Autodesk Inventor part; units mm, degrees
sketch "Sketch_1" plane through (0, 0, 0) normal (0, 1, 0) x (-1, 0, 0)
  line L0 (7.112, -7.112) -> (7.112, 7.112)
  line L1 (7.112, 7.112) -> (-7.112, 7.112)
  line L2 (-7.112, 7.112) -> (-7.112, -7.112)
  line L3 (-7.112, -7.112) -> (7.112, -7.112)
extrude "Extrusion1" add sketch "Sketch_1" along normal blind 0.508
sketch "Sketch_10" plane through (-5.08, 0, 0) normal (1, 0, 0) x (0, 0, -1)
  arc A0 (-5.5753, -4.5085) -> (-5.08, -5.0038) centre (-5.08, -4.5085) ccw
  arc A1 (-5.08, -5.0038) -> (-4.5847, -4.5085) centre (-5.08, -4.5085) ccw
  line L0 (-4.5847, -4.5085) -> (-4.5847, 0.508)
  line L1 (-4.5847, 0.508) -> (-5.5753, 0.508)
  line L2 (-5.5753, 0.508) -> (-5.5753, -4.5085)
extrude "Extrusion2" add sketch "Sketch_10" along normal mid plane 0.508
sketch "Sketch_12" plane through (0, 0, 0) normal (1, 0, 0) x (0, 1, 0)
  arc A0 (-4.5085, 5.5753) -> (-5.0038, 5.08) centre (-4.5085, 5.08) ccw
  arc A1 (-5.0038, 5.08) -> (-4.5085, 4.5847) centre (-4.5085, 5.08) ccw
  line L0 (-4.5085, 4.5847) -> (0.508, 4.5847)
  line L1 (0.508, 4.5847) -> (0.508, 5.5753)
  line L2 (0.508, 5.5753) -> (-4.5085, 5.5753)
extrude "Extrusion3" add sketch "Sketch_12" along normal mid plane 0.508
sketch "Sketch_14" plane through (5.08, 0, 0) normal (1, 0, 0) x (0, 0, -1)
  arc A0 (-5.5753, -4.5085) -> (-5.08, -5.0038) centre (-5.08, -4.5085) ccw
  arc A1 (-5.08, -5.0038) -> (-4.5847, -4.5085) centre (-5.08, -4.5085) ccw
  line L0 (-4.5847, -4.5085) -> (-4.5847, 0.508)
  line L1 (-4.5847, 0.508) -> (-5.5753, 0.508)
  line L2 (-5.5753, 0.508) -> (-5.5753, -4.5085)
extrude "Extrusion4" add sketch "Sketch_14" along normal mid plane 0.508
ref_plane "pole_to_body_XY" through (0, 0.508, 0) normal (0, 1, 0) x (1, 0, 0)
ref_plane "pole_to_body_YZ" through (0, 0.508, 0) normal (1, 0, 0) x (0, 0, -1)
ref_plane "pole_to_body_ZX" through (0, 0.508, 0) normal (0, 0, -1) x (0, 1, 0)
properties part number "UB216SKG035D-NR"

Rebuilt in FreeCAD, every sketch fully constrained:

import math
import FreeCAD as App
import Part
import Sketcher
Q = App.Units.Quantity

doc = App.newDocument("Part")
body = doc.addObject("PartDesign::Body", "Body")

# Sketch on XZ plane
sketch1 = body.newObject("Sketcher::SketchObject", "Sketch")
sketch1.AttachmentSupport = (doc.getObject("XZ_Plane"), [""])
sketch1.MapMode = "FlatFace"
sketch1.addGeometry(Part.LineSegment(App.Vector(7, -7, 0), App.Vector(-7, -7, 0)), False)
sketch1.addGeometry(Part.LineSegment(App.Vector(-7, -7, 0), App.Vector(-7, 7, 0)), False)
sketch1.addGeometry(Part.LineSegment(App.Vector(-7, 7, 0), App.Vector(7, 7, 0)), False)
sketch1.addGeometry(Part.LineSegment(App.Vector(7, 7, 0), App.Vector(7, -7, 0)), False)
sketch1.addConstraint(Sketcher.Constraint("Coincident", 0, 2, 1, 1))
sketch1.addConstraint(Sketcher.Constraint("Coincident", 1, 2, 2, 1))
sketch1.addConstraint(Sketcher.Constraint("Coincident", 2, 2, 3, 1))
sketch1.addConstraint(Sketcher.Constraint("Coincident", 3, 2, 0, 1))
sketch1.addConstraint(Sketcher.Constraint("Horizontal", 0))
sketch1.addConstraint(Sketcher.Constraint("Vertical", 1))
sketch1.addConstraint(Sketcher.Constraint("Horizontal", 2))
sketch1.addConstraint(Sketcher.Constraint("Vertical", 3))
sketch1.addConstraint(Sketcher.Constraint("Symmetric", 0, 2, 2, 2, -1, 1))
sketch1.addConstraint(Sketcher.Constraint("Equal", 2, 1))
sketch1.addConstraint(Sketcher.Constraint("DistanceX", 0, 2, 0, 1, Q("0.56 in")))
pad1 = body.newObject("PartDesign::Pad", "Pad")
pad1.Profile = sketch1
pad1.Length = Q("0.02 in")
pad1.Reversed = True

# Sketch on YZ plane
sketch2 = body.newObject("Sketcher::SketchObject", "Sketch001")
sketch2.AttachmentSupport = (doc.getObject("YZ_Plane"), [""])
sketch2.MapMode = "FlatFace"
sketch2.AttachmentOffset = App.Placement(App.Vector(0, 0, -0.2 * 25.4), App.Rotation())
sketch2.addGeometry(Part.LineSegment(App.Vector(0.51, 5.58, 0), App.Vector(-4.51, 5.58, 0)), False)
sketch2.addGeometry(Part.ArcOfCircle(Part.Circle(App.Vector(-4.51, 5.08, 0), App.Vector(0, 0, 1), 0.5), math.radians(90), math.radians(270)), False)
sketch2.addGeometry(Part.LineSegment(App.Vector(-4.51, 4.58, 0), App.Vector(0.51, 4.58, 0)), False)
sketch2.addGeometry(Part.LineSegment(App.Vector(0.51, 4.58, 0), App.Vector(0.51, 5.58, 0)), False)
sketch2.addConstraint(Sketcher.Constraint("Tangent", 0, 2, 1, 1))
sketch2.addConstraint(Sketcher.Constraint("Tangent", 1, 2, 2, 1))
sketch2.addConstraint(Sketcher.Constraint("Coincident", 2, 2, 3, 1))
sketch2.addConstraint(Sketcher.Constraint("Coincident", 3, 2, 0, 1))
sketch2.addConstraint(Sketcher.Constraint("Horizontal", 0))
sketch2.addConstraint(Sketcher.Constraint("Horizontal", 2))
sketch2.addConstraint(Sketcher.Constraint("Vertical", 3))
sketch2.addConstraint(Sketcher.Constraint("DistanceY", -1, 1, 1, 3, Q("0.2 in")))
sketch2.addConstraint(Sketcher.Constraint("Radius", 1, Q("0.0195 in")))
sketch2.addConstraint(Sketcher.Constraint("DistanceX", -1, 1, 2, 2, Q("0.02 in")))
sketch2.addConstraint(Sketcher.Constraint("DistanceX", 0, 2, 0, 1, Q("0.1975 in")))
pad2 = body.newObject("PartDesign::Pad", "Pad001")
pad2.Profile = sketch2
pad2.Length = Q("0.02 in")
pad2.Midplane = True

# Sketch on YZ plane
sketch3 = body.newObject("Sketcher::SketchObject", "Sketch002")
sketch3.AttachmentSupport = (doc.getObject("YZ_Plane"), [""])
sketch3.MapMode = "FlatFace"
sketch3.addGeometry(Part.LineSegment(App.Vector(0.51, 5.58, 0), App.Vector(-4.51, 5.58, 0)), False)
sketch3.addGeometry(Part.ArcOfCircle(Part.Circle(App.Vector(-4.51, 5.08, 0), App.Vector(0, 0, 1), 0.5), math.radians(90), math.radians(270)), False)
sketch3.addGeometry(Part.LineSegment(App.Vector(-4.51, 4.58, 0), App.Vector(0.51, 4.58, 0)), False)
sketch3.addGeometry(Part.LineSegment(App.Vector(0.51, 4.58, 0), App.Vector(0.51, 5.58, 0)), False)
sketch3.addConstraint(Sketcher.Constraint("Tangent", 0, 2, 1, 1))
sketch3.addConstraint(Sketcher.Constraint("Tangent", 1, 2, 2, 1))
sketch3.addConstraint(Sketcher.Constraint("Coincident", 2, 2, 3, 1))
sketch3.addConstraint(Sketcher.Constraint("Coincident", 3, 2, 0, 1))
sketch3.addConstraint(Sketcher.Constraint("Horizontal", 0))
sketch3.addConstraint(Sketcher.Constraint("Horizontal", 2))
sketch3.addConstraint(Sketcher.Constraint("Vertical", 3))
sketch3.addConstraint(Sketcher.Constraint("DistanceY", -1, 1, 1, 3, Q("0.2 in")))
sketch3.addConstraint(Sketcher.Constraint("Radius", 1, Q("0.0195 in")))
sketch3.addConstraint(Sketcher.Constraint("DistanceX", -1, 1, 2, 2, Q("0.02 in")))
sketch3.addConstraint(Sketcher.Constraint("DistanceX", 0, 2, 0, 1, Q("0.1975 in")))
pad3 = body.newObject("PartDesign::Pad", "Pad002")
pad3.Profile = sketch3
pad3.Length = Q("0.02 in")
pad3.Midplane = True

# Sketch on YZ plane
sketch4 = body.newObject("Sketcher::SketchObject", "Sketch003")
sketch4.AttachmentSupport = (doc.getObject("YZ_Plane"), [""])
sketch4.MapMode = "FlatFace"
sketch4.AttachmentOffset = App.Placement(App.Vector(0, 0, 0.2 * 25.4), App.Rotation())
sketch4.addGeometry(Part.LineSegment(App.Vector(0.51, 5.58, 0), App.Vector(-4.51, 5.58, 0)), False)
sketch4.addGeometry(Part.ArcOfCircle(Part.Circle(App.Vector(-4.51, 5.08, 0), App.Vector(0, 0, 1), 0.5), math.radians(90), math.radians(270)), False)
sketch4.addGeometry(Part.LineSegment(App.Vector(-4.51, 4.58, 0), App.Vector(0.51, 4.58, 0)), False)
sketch4.addGeometry(Part.LineSegment(App.Vector(0.51, 4.58, 0), App.Vector(0.51, 5.58, 0)), False)
sketch4.addConstraint(Sketcher.Constraint("Tangent", 0, 2, 1, 1))
sketch4.addConstraint(Sketcher.Constraint("Tangent", 1, 2, 2, 1))
sketch4.addConstraint(Sketcher.Constraint("Coincident", 2, 2, 3, 1))
sketch4.addConstraint(Sketcher.Constraint("Coincident", 3, 2, 0, 1))
sketch4.addConstraint(Sketcher.Constraint("Horizontal", 0))
sketch4.addConstraint(Sketcher.Constraint("Horizontal", 2))
sketch4.addConstraint(Sketcher.Constraint("Vertical", 3))
sketch4.addConstraint(Sketcher.Constraint("DistanceY", -1, 1, 1, 3, Q("0.2 in")))
sketch4.addConstraint(Sketcher.Constraint("Radius", 1, Q("0.0195 in")))
sketch4.addConstraint(Sketcher.Constraint("DistanceX", -1, 1, 2, 2, Q("0.02 in")))
sketch4.addConstraint(Sketcher.Constraint("DistanceX", 0, 2, 0, 1, Q("0.1975 in")))
pad4 = body.newObject("PartDesign::Pad", "Pad003")
pad4.Profile = sketch4
pad4.Length = Q("0.02 in")
pad4.Midplane = True

doc.recompute()
